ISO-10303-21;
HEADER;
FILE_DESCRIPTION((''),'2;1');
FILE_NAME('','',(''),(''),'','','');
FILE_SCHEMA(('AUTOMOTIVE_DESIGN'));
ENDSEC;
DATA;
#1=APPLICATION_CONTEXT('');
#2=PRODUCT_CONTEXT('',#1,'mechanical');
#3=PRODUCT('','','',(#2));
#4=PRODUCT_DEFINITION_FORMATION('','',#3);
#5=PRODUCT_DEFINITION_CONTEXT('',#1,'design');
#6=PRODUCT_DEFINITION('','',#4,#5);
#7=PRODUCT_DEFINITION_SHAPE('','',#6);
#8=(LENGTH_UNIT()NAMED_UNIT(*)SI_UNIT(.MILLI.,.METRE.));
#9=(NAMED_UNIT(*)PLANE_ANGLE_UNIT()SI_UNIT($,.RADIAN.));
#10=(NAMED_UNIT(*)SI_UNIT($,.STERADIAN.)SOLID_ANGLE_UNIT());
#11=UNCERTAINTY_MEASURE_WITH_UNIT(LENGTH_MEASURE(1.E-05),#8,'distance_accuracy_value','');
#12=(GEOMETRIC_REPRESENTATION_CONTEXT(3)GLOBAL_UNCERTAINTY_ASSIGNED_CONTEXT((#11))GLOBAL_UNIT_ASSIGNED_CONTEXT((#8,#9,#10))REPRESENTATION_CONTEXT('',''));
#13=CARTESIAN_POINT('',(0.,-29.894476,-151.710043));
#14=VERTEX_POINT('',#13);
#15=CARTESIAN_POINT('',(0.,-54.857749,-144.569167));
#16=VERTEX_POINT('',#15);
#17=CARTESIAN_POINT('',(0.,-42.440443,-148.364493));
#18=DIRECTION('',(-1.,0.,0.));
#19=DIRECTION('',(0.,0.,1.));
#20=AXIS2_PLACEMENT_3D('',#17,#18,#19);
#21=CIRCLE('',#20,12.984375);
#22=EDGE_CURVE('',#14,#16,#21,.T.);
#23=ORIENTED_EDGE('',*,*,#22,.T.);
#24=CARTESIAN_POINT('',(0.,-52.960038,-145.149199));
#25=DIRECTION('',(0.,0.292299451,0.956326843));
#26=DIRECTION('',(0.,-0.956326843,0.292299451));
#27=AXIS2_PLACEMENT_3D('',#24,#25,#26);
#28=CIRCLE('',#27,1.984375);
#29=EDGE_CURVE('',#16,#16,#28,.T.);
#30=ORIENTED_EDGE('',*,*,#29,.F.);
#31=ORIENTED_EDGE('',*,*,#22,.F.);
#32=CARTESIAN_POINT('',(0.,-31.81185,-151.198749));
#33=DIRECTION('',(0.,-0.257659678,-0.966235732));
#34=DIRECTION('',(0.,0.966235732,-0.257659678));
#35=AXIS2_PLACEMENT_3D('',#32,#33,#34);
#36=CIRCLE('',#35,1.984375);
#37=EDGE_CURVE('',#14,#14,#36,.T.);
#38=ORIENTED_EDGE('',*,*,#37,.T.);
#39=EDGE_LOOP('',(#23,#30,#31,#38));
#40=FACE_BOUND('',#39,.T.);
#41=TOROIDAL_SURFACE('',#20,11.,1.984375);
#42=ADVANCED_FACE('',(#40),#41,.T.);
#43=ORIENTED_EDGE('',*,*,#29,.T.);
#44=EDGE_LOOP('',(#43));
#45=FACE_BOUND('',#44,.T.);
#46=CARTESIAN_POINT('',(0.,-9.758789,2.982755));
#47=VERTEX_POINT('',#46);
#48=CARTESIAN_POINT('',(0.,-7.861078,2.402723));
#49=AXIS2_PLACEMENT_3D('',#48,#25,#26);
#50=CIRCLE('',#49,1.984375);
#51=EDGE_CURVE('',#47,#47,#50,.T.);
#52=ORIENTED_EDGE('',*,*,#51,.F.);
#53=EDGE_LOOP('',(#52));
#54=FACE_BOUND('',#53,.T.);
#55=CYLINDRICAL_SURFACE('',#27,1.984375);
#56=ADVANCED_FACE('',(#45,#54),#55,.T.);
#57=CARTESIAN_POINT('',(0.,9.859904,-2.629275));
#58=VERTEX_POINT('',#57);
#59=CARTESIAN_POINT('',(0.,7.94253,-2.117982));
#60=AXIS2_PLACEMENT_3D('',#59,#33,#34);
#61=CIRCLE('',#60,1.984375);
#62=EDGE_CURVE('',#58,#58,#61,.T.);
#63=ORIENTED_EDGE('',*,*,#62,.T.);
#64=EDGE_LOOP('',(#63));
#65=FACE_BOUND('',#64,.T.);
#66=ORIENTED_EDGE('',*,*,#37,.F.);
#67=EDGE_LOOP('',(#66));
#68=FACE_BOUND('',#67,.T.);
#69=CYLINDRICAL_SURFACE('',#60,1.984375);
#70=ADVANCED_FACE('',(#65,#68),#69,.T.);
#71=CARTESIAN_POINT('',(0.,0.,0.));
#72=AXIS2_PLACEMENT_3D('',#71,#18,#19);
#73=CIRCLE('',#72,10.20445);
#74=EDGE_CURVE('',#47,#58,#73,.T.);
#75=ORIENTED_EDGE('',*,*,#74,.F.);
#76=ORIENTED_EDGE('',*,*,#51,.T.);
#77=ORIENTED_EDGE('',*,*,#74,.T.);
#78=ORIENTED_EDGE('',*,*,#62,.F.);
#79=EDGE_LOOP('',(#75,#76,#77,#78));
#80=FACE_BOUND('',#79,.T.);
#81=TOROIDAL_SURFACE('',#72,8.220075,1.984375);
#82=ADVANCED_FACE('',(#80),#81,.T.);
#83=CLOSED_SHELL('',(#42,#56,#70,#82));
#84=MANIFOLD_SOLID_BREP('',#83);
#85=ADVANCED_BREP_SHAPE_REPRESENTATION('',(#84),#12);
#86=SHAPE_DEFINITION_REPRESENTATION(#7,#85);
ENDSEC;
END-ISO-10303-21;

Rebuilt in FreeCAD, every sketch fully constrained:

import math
import FreeCAD as App
import Part
import Sketcher

V = App.Vector
Q = App.Units.Quantity

doc = App.newDocument("Part")
body = doc.addObject("PartDesign::Body", "Body")

# Sketch on an angled plane
sketch1 = body.newObject("Sketcher::SketchObject", "Sketch")
sketch1.Placement = App.Placement(V(0, 7.94253, -2.117982), App.Rotation(V(-1, 0, 0), V(0, 0.966235732, -0.257659678), V(0, -0.257659678, -0.966235732), "ZXY"))
sketch1.addGeometry(Part.Circle(V(0, 0, 0), V(0, 0, 1), 2), False)
sketch1.addConstraint(Sketcher.Constraint("Coincident", 0, 3, -1, 1))
sketch1.addConstraint(Sketcher.Constraint("Diameter", 0, Q("3.96875 mm")))

# Sketch on YZ plane
sketch2 = body.newObject("Sketcher::SketchObject", "Sketch001")
sketch2.AttachmentSupport = (doc.getObject("YZ_Plane"), [""])
sketch2.MapMode = "FlatFace"
sketch2.addGeometry(Part.LineSegment(V(8, -2, 0), V(-32, -151, 0)), False)
sketch2.addGeometry(Part.ArcOfCircle(Part.Circle(V(-42, -148, 0), V(0, 0, 1), 11), math.radians(163), math.radians(345)), False)
sketch2.addGeometry(Part.LineSegment(V(-53, -145, 0), V(-8, 2, 0)), False)
sketch2.addGeometry(Part.ArcOfCircle(Part.Circle(V(0, 0, 0), V(0, 0, 1), 8), math.radians(-15), math.radians(163)), False)
sketch2.addConstraint(Sketcher.Constraint("Tangent", 0, 2, 1, 2))
sketch2.addConstraint(Sketcher.Constraint("Tangent", 1, 1, 2, 1))
sketch2.addConstraint(Sketcher.Constraint("Tangent", 2, 2, 3, 2))
sketch2.addConstraint(Sketcher.Constraint("Tangent", 3, 1, 0, 1))
sketch2.addConstraint(Sketcher.Constraint("Coincident", 3, 3, -1, 1))
sketch2.addConstraint(Sketcher.Constraint("Radius", 1, Q("11 mm")))
sketch2.addConstraint(Sketcher.Constraint("Radius", 3, Q("8.220075 mm")))
sketch2.addConstraint(Sketcher.Constraint("DistanceY", 1, 1, -1, 1, Q("145.149199 mm")))
sketch2.addConstraint(Sketcher.Constraint("DistanceX", 0, 2, -1, 1, Q("31.81185 mm")))
doc.recompute()

additivepipe = body.newObject("PartDesign::AdditivePipe", "AdditivePipe")
additivepipe.Profile = sketch1
additivepipe.Spine = (sketch2, ["Edge1", "Edge2", "Edge3", "Edge4"])

doc.recompute()
